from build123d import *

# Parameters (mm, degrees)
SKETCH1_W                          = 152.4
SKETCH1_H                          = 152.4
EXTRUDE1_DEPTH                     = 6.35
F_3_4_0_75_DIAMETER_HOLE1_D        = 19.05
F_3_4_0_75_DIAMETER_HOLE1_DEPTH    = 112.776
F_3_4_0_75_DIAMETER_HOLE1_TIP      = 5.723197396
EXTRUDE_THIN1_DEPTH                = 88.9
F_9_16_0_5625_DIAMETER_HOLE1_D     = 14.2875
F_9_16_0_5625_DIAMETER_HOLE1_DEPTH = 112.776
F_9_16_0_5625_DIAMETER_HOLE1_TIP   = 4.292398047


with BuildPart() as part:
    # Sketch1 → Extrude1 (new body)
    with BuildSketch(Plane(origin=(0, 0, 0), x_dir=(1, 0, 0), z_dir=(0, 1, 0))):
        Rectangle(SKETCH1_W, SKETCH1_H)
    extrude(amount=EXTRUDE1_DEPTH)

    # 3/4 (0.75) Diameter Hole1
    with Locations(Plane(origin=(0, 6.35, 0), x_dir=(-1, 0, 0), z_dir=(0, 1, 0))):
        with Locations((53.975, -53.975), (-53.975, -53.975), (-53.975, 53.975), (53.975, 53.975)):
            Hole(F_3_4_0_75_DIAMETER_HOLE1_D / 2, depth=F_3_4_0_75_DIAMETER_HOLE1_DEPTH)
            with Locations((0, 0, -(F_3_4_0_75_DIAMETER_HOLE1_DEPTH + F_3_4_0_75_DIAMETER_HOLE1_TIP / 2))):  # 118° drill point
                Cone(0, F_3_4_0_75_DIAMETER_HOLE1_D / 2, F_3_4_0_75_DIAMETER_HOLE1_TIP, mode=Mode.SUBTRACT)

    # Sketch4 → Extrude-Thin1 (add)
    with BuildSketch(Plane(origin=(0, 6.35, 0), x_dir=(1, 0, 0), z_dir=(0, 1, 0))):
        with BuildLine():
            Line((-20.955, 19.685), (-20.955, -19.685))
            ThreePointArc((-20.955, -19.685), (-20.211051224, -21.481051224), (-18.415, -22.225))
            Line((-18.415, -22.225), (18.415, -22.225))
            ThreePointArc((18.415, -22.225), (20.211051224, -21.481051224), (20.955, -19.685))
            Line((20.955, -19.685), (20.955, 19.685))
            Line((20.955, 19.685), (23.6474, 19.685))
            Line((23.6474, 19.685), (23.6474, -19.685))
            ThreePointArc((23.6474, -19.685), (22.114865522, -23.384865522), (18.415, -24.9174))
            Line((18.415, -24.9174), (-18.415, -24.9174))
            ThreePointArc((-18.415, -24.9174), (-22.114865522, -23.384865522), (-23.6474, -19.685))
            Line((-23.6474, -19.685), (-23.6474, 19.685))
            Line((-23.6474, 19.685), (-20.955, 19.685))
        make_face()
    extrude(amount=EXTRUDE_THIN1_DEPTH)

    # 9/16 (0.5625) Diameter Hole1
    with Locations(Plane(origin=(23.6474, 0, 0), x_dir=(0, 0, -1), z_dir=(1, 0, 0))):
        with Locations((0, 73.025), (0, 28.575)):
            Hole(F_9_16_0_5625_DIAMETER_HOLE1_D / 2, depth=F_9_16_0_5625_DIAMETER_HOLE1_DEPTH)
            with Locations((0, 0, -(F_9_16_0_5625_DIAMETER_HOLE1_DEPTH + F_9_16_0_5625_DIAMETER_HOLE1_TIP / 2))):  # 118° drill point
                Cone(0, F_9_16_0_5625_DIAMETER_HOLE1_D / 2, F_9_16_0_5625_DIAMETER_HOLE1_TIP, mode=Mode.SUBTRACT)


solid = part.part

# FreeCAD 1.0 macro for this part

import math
import FreeCAD as App
import Part
import Sketcher

V = App.Vector
Q = App.Units.Quantity

doc = App.newDocument("Part")
body = doc.addObject("PartDesign::Body", "Body")

# Sketch on XZ plane
sketch1 = doc.addObject("Sketcher::SketchObject", "Sketch")
body.addObject(sketch1)
sketch1.AttachmentSupport = (doc.XZ_Plane, [""])
sketch1.MapMode = "FlatFace"
sketch1.addGeometry([
    Part.LineSegment(V(-76, -76, 0), V(-76, 76, 0)),
    Part.LineSegment(V(-76, 76, 0), V(76, 76, 0)),
    Part.LineSegment(V(76, 76, 0), V(76, -76, 0)),
    Part.LineSegment(V(76, -76, 0), V(-76, -76, 0)),
], False)
sketch1.addConstraint([
    Sketcher.Constraint("Coincident", 0, 2, 1, 1),
    Sketcher.Constraint("Coincident", 1, 2, 2, 1),
    Sketcher.Constraint("Coincident", 2, 2, 3, 1),
    Sketcher.Constraint("Coincident", 3, 2, 0, 1),
    Sketcher.Constraint("Vertical", 0),
    Sketcher.Constraint("Horizontal", 1),
    Sketcher.Constraint("Vertical", 2),
    Sketcher.Constraint("Horizontal", 3),
    Sketcher.Constraint("Symmetric", 0, 2, 2, 2, -1, 1),
    Sketcher.Constraint("Equal", 3, 0),
    Sketcher.Constraint("DistanceX", 1, 1, 1, 2, Q("6 in")),
])
pad1 = doc.addObject("PartDesign::Pad", "Pad")
body.addObject(pad1)
pad1.Profile = sketch1
pad1.Length = Q("0.25 in")
pad1.Reversed = True

# Sketch on XZ plane
sketch2 = doc.addObject("Sketcher::SketchObject", "Sketch001")
body.addObject(sketch2)
sketch2.AttachmentSupport = (doc.XZ_Plane, [""])
sketch2.MapMode = "FlatFace"
sketch2.AttachmentOffset = App.Placement(V(0, 0, -0.25 * 25.4), App.Rotation())
sketch2.addGeometry([
    Part.Circle(V(-54, -54, 0), V(0, 0, 1), 10),
    Part.Circle(V(54, -54, 0), V(0, 0, 1), 10),
    Part.Circle(V(54, 54, 0), V(0, 0, 1), 10),
    Part.Circle(V(-54, 54, 0), V(0, 0, 1), 10),
], False)
sketch2.addConstraint([
    Sketcher.Constraint("Equal", 0, 1),
    Sketcher.Constraint("Equal", 1, 2),
    Sketcher.Constraint("Equal", 2, 3),
    Sketcher.Constraint("Symmetric", 0, 3, 2, 3, -1, 1),
    Sketcher.Constraint("Symmetric", 1, 3, 3, 3, -1, 1),
    Sketcher.Constraint("Symmetric", 0, 3, 1, 3, -2),
    Sketcher.Constraint("Diameter", 0, Q("0.75 in")),
    Sketcher.Constraint("DistanceX", 0, 3, 1, 3, Q("4.25 in")),
    Sketcher.Constraint("DistanceY", 1, 3, 2, 3, Q("4.25 in")),
])
doc.recompute()
hole = doc.addObject("PartDesign::Hole", "Hole")
body.addObject(hole)
hole.Profile = sketch2
hole.ThreadType = "None"
hole.Diameter = Q("0.75 in")
hole.DepthType = "Dimension"
hole.Depth = Q("4.44 in")
hole.DrillPoint = "Angled"
hole.DrillPointAngle = 118
hole.Reversed = True

# Sketch on XZ plane
sketch3 = doc.addObject("Sketcher::SketchObject", "Sketch002")
body.addObject(sketch3)
sketch3.AttachmentSupport = (doc.XZ_Plane, [""])
sketch3.MapMode = "FlatFace"
sketch3.AttachmentOffset = App.Placement(V(0, 0, -0.25 * 25.4), App.Rotation())
sketch3.addGeometry([
    Part.LineSegment(V(-21, 19.7, 0), V(-21, -19.7, 0)),  # 0
    Part.LineSegment(V(-21, -19.7, 0), V(-23.6, -19.7, 0)),  # 1
    Part.LineSegment(V(-23.6, -19.7, 0), V(-23.6, 19.7, 0)),  # 2
    Part.ArcOfCircle(Part.Circle(V(-18.4, 19.7, 0), V(0, 0, 1), 5.2), math.radians(90), math.radians(180)),  # 3
    Part.LineSegment(V(-18.4, 24.9, 0), V(18.4, 24.9, 0)),  # 4
    Part.ArcOfCircle(Part.Circle(V(18.4, 19.7, 0), V(0, 0, 1), 5.2), math.radians(0), math.radians(90)),  # 5
    Part.LineSegment(V(23.6, 19.7, 0), V(23.6, -19.7, 0)),  # 6
    Part.LineSegment(V(23.6, -19.7, 0), V(21, -19.7, 0)),  # 7
    Part.LineSegment(V(21, -19.7, 0), V(21, 19.7, 0)),  # 8
    Part.ArcOfCircle(Part.Circle(V(18.4, 19.7, 0), V(0, 0, 1), 2.5), math.radians(0), math.radians(90)),  # 9
    Part.LineSegment(V(18.4, 22.2, 0), V(-18.4, 22.2, 0)),  # 10
    Part.ArcOfCircle(Part.Circle(V(-18.4, 19.7, 0), V(0, 0, 1), 2.5), math.radians(90), math.radians(180)),  # 11
], False)
sketch3.addConstraint([
    Sketcher.Constraint("Coincident", 0, 2, 1, 1),
    Sketcher.Constraint("Coincident", 1, 2, 2, 1),
    Sketcher.Constraint("Tangent", 2, 2, 3, 2),
    Sketcher.Constraint("Tangent", 3, 1, 4, 1),
    Sketcher.Constraint("Tangent", 4, 2, 5, 2),
    Sketcher.Constraint("Tangent", 5, 1, 6, 1),
    Sketcher.Constraint("Coincident", 6, 2, 7, 1),
    Sketcher.Constraint("Coincident", 7, 2, 8, 1),
    Sketcher.Constraint("Tangent", 8, 2, 9, 1),
    Sketcher.Constraint("Tangent", 9, 2, 10, 1),
    Sketcher.Constraint("Tangent", 10, 2, 11, 1),
    Sketcher.Constraint("Tangent", 11, 2, 0, 1),
    Sketcher.Constraint("Vertical", 0),
    Sketcher.Constraint("Horizontal", 1),
    Sketcher.Constraint("Vertical", 2),
    Sketcher.Constraint("Horizontal", 4),
    Sketcher.Constraint("Vertical", 6),
    Sketcher.Constraint("Horizontal", 7),
    Sketcher.Constraint("Vertical", 8),
    Sketcher.Constraint("Horizontal", 10),
    Sketcher.Constraint("Coincident", 9, 3, 5, 3),
    Sketcher.Constraint("Coincident", 11, 3, 3, 3),
    Sketcher.Constraint("Equal", 3, 5),
    Sketcher.Constraint("Symmetric", 1, 2, 5, 1, -1, 1),
    Sketcher.Constraint("Horizontal", 1, 2, 6, 2),
    Sketcher.Constraint("Radius", 9, Q("0.1 in")),
    Sketcher.Constraint("Radius", 3, Q("0.206 in")),
    Sketcher.Constraint("DistanceX", 4, 1, 4, 2, Q("1.45 in")),
    Sketcher.Constraint("DistanceY", 0, 2, 0, 1, Q("1.55 in")),
])
pad2 = doc.addObject("PartDesign::Pad", "Pad001")
body.addObject(pad2)
pad2.Profile = sketch3
pad2.Length = Q("3.5 in")
pad2.Reversed = True

# Sketch on YZ plane
sketch4 = doc.addObject("Sketcher::SketchObject", "Sketch003")
body.addObject(sketch4)
sketch4.AttachmentSupport = (doc.YZ_Plane, [""])
sketch4.MapMode = "FlatFace"
sketch4.AttachmentOffset = App.Placement(V(0, 0, 0.931 * 25.4), App.Rotation())
sketch4.addGeometry([
    Part.Circle(V(73, 0, 0), V(0, 0, 1), 7),
    Part.Circle(V(29, 0, 0), V(0, 0, 1), 7),
], False)
sketch4.addConstraint([
    Sketcher.Constraint("Equal", 0, 1),
    Sketcher.Constraint("PointOnObject", 0, 3, -1),
    Sketcher.Constraint("PointOnObject", 1, 3, -1),
    Sketcher.Constraint("Diameter", 0, Q("0.5625 in")),
    Sketcher.Constraint("DistanceX", 1, 3, 0, 3, Q("1.75 in")),
    Sketcher.Constraint("DistanceX", -1, 1, 0, 3, Q("2.875 in")),
])
doc.recompute()
hole2 = doc.addObject("PartDesign::Hole", "Hole001")
body.addObject(hole2)
hole2.Profile = sketch4
hole2.ThreadType = "None"
hole2.Diameter = Q("0.5625 in")
hole2.DepthType = "Dimension"
hole2.Depth = Q("4.44 in")
hole2.DrillPoint = "Angled"
hole2.DrillPointAngle = 118

doc.recompute()
